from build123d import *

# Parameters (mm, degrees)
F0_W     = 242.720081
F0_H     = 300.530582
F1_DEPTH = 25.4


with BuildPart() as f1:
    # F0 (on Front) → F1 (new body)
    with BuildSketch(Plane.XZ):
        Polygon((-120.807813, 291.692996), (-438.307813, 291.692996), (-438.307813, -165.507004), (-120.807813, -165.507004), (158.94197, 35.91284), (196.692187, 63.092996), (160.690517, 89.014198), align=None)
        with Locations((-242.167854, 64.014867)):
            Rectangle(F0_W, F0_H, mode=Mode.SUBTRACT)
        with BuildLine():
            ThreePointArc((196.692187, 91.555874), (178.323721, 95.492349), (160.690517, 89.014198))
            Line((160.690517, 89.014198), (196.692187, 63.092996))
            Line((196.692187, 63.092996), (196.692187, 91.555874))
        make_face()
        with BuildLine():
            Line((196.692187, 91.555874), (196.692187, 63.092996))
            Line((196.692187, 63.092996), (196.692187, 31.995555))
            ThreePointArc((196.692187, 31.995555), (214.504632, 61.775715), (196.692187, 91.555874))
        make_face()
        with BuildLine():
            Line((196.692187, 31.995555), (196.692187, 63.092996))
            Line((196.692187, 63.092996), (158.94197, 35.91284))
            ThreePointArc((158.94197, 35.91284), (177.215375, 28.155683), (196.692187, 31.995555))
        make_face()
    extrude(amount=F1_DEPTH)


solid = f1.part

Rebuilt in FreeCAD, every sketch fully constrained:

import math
import FreeCAD as App
import Part
import Sketcher
Q = App.Units.Quantity


def add_polygon(sketch, points):
    """Adds a closed chain of lines whose ends are joined by coincident constraints."""
    first, n = sketch.GeometryCount, len(points)
    for a, b in zip(points, points[1:] + points[:1]):
        sketch.addGeometry(Part.LineSegment(App.Vector(*a, 0), App.Vector(*b, 0)), False)
    for i in range(n):
        sketch.addConstraint(Sketcher.Constraint("Coincident", first + i, 2, first + (i + 1) % n, 1))

doc = App.newDocument("Part")
params = doc.addObject("Spreadsheet::Sheet", "Params")
for row, (alias, value) in enumerate([
    ("sketch1_height", "18 in"),
    ("sketch1_width", "12.5 in"),
    ("pad1_length", "1 in"),
], start=1):
    params.set(f"A{row}", alias)
    params.set(f"B{row}", "=" + value)
    params.setAlias(f"B{row}", alias)

body = doc.addObject("PartDesign::Body", "Body")

# Sketch on XZ plane
sketch1 = body.newObject("Sketcher::SketchObject", "Sketch")
sketch1.AttachmentSupport = (doc.getObject("XZ_Plane"), [""])
sketch1.MapMode = "FlatFace"
sketch1.addGeometry(Part.LineSegment(App.Vector(-120.807813, 291.692996, 0), App.Vector(-438.307813, 291.692996, 0)), False)  # 0
sketch1.addGeometry(Part.LineSegment(App.Vector(-438.307813, 291.692996, 0), App.Vector(-438.307813, -165.507004, 0)), False)  # 1
sketch1.addGeometry(Part.LineSegment(App.Vector(-438.307813, -165.507004, 0), App.Vector(-120.807813, -165.507004, 0)), False)  # 2
sketch1.addGeometry(Part.LineSegment(App.Vector(-120.807813, -165.507004, 0), App.Vector(158.94197, 35.91284, 0)), False)  # 3
sketch1.addGeometry(Part.ArcOfCircle(Part.Circle(App.Vector(180.704077, 61.775715, 0), App.Vector(0, 0, 1), 33.800556), math.radians(-130.078662), math.radians(-61.76993)), False)  # 4
sketch1.addGeometry(Part.ArcOfCircle(Part.Circle(App.Vector(180.704076, 61.775714, 0), App.Vector(0, 0, 1), 33.800556), math.radians(-61.769928), math.radians(61.769928)), False)  # 5
sketch1.addGeometry(Part.ArcOfCircle(Part.Circle(App.Vector(180.704077, 61.775712, 0), App.Vector(0, 0, 1), 33.800558), math.radians(61.769932), math.radians(126.306698)), False)  # 6
sketch1.addGeometry(Part.LineSegment(App.Vector(160.690517, 89.014198, 0), App.Vector(-120.807813, 291.692996, 0)), False)  # 7
add_polygon(sketch1, [(-120.807813, -86.250424), (-363.527895, -86.250424), (-363.527895, 214.280158), (-120.807813, 214.280158)])  # lines 8-11
sketch1.addConstraint(Sketcher.Constraint("Coincident", 0, 2, 1, 1))
sketch1.addConstraint(Sketcher.Constraint("Coincident", 1, 2, 2, 1))
sketch1.addConstraint(Sketcher.Constraint("Coincident", 2, 2, 3, 1))
sketch1.addConstraint(Sketcher.Constraint("Coincident", 3, 2, 4, 1))
sketch1.addConstraint(Sketcher.Constraint("Tangent", 4, 2, 5, 1))
sketch1.addConstraint(Sketcher.Constraint("Tangent", 5, 2, 6, 1))
sketch1.addConstraint(Sketcher.Constraint("Coincident", 6, 2, 7, 1))
sketch1.addConstraint(Sketcher.Constraint("Coincident", 7, 2, 0, 1))
sketch1.addConstraint(Sketcher.Constraint("Horizontal", 0))
sketch1.addConstraint(Sketcher.Constraint("Vertical", 1))
sketch1.addConstraint(Sketcher.Constraint("Horizontal", 2))
sketch1.addConstraint(Sketcher.Constraint("Horizontal", 8))
sketch1.addConstraint(Sketcher.Constraint("Vertical", 9))
sketch1.addConstraint(Sketcher.Constraint("Horizontal", 10))
sketch1.addConstraint(Sketcher.Constraint("Vertical", 11))
sketch1.addConstraint(Sketcher.Constraint("Coincident", 6, 3, 4, 3))
sketch1.addConstraint(Sketcher.Constraint("Vertical", 4, 2, 5, 2))
sketch1.addConstraint(Sketcher.Constraint("Vertical", 2, 2, 7, 2))
sketch1.addConstraint(Sketcher.Constraint("Vertical", 7, 2, 10, 2))
sketch1.addConstraint(Sketcher.Constraint("DistanceY", 1, 2, 1, 1, Q("18 in")))
sketch1.addConstraint(Sketcher.Constraint("DistanceX", 0, 2, 0, 1, Q("12.5 in")))
sketch1.addConstraint(Sketcher.Constraint("DistanceX", 2, 2, 4, 2, Q("12.5 in")))
sketch1.addConstraint(Sketcher.Constraint("Radius", 4, Q("33.800556 mm")))
sketch1.addConstraint(Sketcher.Constraint("DistanceX", 8, 2, 8, 1, Q("242.720081 mm")))
sketch1.addConstraint(Sketcher.Constraint("DistanceY", 9, 1, 9, 2, Q("300.530582 mm")))
sketch1.addConstraint(Sketcher.Constraint("DistanceY", -1, 1, 6, 2, Q("89.014198 mm")))
sketch1.addConstraint(Sketcher.Constraint("Distance", 7, Q("346.871741 mm")))
sketch1.addConstraint(Sketcher.Constraint("DistanceY", -1, 1, 6, 3, Q("61.775712 mm")))
sketch1.addConstraint(Sketcher.Constraint("DistanceX", -1, 1, 3, 2, Q("158.94197 mm")))
sketch1.addConstraint(Sketcher.Constraint("DistanceY", -1, 1, 3, 2, Q("35.91284 mm")))
sketch1.addConstraint(Sketcher.Constraint("DistanceY", -1, 1, 9, 2, Q("214.280158 mm")))
sketch1.addConstraint(Sketcher.Constraint("DistanceX", 0, 2, 5, 3, Q("619.011889 mm")))
sketch1.setExpression("Constraints[23]", "Params.sketch1_height")
sketch1.setExpression("Constraints[24]", "Params.sketch1_width")
pad1 = body.newObject("PartDesign::Pad", "Pad")
pad1.Profile = sketch1
pad1.setExpression("Length", "Params.pad1_length")

doc.recompute()
